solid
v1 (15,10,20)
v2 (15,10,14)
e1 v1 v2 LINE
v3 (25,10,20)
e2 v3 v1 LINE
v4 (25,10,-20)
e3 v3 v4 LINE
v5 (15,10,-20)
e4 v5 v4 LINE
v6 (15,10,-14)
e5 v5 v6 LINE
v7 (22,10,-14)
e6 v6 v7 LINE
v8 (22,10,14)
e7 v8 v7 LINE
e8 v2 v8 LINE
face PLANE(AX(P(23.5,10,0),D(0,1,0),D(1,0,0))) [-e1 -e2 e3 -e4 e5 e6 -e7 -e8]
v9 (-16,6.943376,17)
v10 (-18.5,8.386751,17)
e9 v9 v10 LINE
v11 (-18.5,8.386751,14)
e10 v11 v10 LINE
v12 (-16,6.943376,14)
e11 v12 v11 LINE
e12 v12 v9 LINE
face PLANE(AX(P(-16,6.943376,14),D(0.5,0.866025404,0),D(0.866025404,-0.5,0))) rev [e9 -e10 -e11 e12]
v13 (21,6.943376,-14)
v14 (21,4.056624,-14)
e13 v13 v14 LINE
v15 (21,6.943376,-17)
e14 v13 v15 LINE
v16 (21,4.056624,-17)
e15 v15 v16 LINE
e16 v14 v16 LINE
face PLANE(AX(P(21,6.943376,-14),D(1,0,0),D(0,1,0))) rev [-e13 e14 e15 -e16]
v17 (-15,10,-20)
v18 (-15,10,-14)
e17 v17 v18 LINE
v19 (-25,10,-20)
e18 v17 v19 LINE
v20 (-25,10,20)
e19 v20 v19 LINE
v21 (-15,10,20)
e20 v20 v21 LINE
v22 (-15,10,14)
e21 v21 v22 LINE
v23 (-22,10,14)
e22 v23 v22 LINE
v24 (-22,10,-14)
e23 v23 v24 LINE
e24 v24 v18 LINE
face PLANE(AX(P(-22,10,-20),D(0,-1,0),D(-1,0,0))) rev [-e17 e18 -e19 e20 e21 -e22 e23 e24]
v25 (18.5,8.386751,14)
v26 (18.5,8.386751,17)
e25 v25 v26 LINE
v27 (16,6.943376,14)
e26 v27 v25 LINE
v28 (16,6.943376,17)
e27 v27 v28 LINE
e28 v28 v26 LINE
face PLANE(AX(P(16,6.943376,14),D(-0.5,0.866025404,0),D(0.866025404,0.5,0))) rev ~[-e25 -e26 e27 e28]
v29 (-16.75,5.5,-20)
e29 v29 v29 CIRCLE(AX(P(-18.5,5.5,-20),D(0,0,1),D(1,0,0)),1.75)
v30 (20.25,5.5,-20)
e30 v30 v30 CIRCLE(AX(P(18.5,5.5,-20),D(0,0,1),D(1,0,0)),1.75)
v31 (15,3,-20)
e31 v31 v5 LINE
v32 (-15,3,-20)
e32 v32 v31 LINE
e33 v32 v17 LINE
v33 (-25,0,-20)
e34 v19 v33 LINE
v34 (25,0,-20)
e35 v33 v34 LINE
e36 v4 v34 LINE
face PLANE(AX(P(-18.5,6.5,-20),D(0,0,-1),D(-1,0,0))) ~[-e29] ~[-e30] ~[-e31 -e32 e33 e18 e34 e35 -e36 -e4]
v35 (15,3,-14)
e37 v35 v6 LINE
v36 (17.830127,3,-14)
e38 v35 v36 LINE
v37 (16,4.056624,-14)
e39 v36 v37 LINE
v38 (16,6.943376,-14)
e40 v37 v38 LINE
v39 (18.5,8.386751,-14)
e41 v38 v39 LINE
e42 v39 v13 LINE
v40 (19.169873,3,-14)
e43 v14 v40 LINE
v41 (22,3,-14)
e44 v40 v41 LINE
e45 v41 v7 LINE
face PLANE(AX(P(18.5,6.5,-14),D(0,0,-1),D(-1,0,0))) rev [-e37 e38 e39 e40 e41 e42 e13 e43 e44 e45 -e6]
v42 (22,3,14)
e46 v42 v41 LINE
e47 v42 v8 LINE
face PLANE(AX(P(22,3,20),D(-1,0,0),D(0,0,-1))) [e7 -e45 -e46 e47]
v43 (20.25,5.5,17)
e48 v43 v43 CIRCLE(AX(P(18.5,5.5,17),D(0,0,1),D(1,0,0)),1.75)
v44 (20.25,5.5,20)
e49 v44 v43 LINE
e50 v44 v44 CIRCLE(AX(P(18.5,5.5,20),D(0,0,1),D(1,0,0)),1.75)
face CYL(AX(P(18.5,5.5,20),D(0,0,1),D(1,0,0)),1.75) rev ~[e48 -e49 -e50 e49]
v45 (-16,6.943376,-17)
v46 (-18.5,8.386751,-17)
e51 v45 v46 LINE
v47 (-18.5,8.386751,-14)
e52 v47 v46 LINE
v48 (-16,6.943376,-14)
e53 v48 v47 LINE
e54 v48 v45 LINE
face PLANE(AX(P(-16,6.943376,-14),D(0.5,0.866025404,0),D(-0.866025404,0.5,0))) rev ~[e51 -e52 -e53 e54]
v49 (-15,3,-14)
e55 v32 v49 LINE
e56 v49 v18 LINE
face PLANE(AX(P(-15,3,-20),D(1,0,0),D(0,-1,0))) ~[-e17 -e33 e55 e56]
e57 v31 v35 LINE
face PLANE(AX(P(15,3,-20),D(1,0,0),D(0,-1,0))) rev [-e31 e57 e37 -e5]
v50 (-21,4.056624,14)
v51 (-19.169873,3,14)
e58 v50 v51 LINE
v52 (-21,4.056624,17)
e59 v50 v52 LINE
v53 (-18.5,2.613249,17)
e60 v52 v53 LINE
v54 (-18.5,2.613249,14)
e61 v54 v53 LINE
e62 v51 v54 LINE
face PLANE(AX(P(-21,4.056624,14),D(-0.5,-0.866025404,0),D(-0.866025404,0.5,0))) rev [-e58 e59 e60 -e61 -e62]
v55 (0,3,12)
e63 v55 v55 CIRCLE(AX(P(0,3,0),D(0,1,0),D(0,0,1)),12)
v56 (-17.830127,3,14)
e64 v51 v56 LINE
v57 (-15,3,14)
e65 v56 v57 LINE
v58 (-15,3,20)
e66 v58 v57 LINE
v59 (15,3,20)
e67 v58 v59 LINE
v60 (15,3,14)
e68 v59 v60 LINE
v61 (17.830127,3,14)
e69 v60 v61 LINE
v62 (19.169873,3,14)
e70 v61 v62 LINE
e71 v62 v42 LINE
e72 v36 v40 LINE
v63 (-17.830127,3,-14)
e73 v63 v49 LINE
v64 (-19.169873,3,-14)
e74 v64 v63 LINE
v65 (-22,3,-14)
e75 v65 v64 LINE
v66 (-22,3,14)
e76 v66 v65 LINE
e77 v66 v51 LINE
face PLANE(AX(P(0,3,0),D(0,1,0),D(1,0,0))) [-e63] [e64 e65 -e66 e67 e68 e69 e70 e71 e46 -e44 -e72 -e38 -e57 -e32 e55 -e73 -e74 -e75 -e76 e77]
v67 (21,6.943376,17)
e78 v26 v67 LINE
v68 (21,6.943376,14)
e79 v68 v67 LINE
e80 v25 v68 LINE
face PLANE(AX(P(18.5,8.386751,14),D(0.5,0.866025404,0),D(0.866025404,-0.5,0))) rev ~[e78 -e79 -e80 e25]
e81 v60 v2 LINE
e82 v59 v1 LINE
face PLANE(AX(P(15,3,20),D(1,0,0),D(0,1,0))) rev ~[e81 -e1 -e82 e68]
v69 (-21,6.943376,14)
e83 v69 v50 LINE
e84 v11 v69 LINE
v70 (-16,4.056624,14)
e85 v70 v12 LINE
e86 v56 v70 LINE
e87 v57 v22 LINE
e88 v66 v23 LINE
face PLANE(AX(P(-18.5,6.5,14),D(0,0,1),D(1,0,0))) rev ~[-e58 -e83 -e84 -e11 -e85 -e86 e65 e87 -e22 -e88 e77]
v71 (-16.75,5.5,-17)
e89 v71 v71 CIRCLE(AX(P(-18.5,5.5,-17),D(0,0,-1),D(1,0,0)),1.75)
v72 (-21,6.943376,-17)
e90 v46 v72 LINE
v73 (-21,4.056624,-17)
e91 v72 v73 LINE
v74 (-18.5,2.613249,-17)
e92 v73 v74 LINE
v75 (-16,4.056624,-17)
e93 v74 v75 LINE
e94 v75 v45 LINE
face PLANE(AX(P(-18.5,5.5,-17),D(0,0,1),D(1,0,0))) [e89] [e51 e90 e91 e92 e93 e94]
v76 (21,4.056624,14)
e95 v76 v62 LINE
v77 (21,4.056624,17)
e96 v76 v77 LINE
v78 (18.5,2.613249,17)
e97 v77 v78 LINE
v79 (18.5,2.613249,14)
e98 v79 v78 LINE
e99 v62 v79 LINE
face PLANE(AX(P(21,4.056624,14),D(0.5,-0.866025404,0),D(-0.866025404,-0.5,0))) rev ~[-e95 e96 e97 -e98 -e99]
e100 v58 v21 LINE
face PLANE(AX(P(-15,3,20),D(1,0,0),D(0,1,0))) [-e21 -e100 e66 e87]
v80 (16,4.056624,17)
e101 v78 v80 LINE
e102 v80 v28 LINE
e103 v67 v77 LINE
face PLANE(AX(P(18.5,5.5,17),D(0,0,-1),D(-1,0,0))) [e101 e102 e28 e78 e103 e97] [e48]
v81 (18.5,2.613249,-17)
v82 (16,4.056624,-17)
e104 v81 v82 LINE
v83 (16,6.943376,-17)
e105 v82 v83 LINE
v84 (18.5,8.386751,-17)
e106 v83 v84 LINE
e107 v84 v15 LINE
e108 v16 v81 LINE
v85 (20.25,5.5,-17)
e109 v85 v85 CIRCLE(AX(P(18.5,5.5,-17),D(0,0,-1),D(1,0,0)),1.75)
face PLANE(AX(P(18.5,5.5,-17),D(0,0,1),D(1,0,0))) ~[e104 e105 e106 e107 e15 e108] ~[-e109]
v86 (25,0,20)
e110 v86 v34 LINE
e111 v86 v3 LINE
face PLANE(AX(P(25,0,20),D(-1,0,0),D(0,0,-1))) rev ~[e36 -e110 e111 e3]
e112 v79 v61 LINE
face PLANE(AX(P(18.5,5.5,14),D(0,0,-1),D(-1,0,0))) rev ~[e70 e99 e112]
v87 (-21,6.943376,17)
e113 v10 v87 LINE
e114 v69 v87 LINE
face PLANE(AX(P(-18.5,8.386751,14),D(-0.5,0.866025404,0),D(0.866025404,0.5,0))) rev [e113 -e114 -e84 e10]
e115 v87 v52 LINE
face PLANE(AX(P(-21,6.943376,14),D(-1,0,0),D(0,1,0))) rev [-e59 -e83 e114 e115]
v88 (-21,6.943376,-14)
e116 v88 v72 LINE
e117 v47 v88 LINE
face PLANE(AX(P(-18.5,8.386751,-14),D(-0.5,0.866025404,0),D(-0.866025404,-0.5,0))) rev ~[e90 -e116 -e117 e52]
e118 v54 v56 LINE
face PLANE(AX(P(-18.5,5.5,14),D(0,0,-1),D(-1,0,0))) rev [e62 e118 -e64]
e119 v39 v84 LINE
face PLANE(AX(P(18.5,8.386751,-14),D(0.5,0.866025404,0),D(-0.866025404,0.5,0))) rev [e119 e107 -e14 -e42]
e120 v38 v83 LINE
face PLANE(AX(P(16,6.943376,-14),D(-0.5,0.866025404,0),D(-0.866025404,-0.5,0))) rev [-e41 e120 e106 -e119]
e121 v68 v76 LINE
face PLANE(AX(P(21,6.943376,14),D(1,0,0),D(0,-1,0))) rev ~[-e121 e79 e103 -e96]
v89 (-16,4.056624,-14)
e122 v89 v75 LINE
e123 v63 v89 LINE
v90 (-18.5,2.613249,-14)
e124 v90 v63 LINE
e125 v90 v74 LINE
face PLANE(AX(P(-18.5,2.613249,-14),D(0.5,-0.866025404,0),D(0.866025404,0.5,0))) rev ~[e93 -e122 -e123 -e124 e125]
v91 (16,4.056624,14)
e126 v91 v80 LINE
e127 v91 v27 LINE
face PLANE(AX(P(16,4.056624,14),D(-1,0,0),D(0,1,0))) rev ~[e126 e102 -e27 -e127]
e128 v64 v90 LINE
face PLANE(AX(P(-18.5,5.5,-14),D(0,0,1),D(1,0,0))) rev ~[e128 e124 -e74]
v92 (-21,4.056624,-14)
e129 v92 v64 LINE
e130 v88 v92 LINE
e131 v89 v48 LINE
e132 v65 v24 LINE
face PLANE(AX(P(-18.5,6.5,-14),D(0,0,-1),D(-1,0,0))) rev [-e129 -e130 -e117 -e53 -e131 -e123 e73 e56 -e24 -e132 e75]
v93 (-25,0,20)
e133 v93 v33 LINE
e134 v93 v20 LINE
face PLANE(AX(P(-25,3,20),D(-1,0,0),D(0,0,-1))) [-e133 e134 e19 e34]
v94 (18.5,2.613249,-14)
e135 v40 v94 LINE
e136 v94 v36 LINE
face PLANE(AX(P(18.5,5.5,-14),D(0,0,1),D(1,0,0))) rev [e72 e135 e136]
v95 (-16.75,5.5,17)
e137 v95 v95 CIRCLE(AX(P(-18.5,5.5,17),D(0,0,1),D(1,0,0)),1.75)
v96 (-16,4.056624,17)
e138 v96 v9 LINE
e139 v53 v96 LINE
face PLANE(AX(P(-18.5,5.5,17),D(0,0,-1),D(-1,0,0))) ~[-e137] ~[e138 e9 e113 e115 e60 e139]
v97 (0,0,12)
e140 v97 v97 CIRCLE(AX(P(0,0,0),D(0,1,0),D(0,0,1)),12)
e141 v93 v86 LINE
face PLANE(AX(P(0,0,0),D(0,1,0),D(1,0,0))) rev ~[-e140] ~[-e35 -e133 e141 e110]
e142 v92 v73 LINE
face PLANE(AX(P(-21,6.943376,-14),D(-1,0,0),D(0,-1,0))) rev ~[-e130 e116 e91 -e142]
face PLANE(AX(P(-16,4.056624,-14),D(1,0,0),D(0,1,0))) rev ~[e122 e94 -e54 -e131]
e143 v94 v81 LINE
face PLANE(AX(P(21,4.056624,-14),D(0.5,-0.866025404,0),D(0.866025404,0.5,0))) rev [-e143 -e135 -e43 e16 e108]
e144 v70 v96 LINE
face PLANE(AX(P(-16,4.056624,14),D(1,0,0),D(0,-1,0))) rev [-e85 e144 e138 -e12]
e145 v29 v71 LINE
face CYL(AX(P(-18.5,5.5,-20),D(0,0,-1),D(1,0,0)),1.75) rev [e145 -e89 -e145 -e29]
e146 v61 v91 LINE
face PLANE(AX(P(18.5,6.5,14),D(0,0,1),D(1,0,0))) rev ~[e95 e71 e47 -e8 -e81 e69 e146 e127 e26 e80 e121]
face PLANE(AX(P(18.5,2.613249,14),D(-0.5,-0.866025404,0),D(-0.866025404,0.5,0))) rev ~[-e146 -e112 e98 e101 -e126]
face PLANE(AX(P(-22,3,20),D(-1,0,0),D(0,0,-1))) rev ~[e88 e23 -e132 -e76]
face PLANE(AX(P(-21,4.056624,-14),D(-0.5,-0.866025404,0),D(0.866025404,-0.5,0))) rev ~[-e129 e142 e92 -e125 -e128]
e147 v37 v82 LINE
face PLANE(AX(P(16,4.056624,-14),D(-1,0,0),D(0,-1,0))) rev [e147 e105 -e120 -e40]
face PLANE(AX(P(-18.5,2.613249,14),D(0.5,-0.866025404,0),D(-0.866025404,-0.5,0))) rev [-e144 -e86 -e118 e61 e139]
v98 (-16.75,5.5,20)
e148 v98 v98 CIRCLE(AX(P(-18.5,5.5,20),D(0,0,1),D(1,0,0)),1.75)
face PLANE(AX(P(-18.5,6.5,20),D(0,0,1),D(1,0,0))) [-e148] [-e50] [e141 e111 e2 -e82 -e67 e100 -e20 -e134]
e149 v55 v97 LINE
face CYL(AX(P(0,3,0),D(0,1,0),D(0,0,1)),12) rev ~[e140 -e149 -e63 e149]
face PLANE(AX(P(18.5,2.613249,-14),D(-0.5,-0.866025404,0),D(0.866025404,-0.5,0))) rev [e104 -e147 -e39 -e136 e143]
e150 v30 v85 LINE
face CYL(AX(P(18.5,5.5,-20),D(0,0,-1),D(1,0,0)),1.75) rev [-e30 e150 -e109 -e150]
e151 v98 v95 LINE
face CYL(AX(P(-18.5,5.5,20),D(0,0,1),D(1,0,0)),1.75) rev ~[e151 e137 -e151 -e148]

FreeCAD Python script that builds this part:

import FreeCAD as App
import Part
import Sketcher
Q = App.Units.Quantity


def add_polygon(sketch, points):
    """Adds a closed chain of lines whose ends are joined by coincident constraints."""
    first, n = sketch.GeometryCount, len(points)
    for a, b in zip(points, points[1:] + points[:1]):
        sketch.addGeometry(Part.LineSegment(App.Vector(*a, 0), App.Vector(*b, 0)), False)
    for i in range(n):
        sketch.addConstraint(Sketcher.Constraint("Coincident", first + i, 2, first + (i + 1) % n, 1))

doc = App.newDocument("Part")
body = doc.addObject("PartDesign::Body", "Body")

# Sketch on XZ plane
sketch1 = doc.addObject("Sketcher::SketchObject", "Sketch")
body.addObject(sketch1)
sketch1.AttachmentSupport = (doc.XZ_Plane, [""])
sketch1.MapMode = "FlatFace"
add_polygon(sketch1, [(-25, -20), (-25, 20), (25, 20), (25, -20)])  # lines 0-3
sketch1.addConstraint([
    Sketcher.Constraint("Vertical", 0),
    Sketcher.Constraint("Horizontal", 1),
    Sketcher.Constraint("Vertical", 2),
    Sketcher.Constraint("Horizontal", 3),
    Sketcher.Constraint("Symmetric", 0, 2, 2, 2, -1, 1),
    Sketcher.Constraint("DistanceX", 1, 1, 1, 2, 50.0),
    Sketcher.Constraint("DistanceY", 0, 1, 0, 2, 40.0),
])
pad1 = doc.addObject("PartDesign::Pad", "Pad")
body.addObject(pad1)
pad1.Profile = sketch1
pad1.Length = 3
pad1.Reversed = True

# Sketch on XZ plane
sketch2 = doc.addObject("Sketcher::SketchObject", "Sketch001")
body.addObject(sketch2)
sketch2.AttachmentSupport = (doc.XZ_Plane, [""])
sketch2.MapMode = "FlatFace"
sketch2.AttachmentOffset = App.Placement(App.Vector(0, 0, -3), App.Rotation())
sketch2.addGeometry(Part.Circle(App.Vector(0, 0, 0), App.Vector(0, 0, 1), 12), False)
sketch2.addConstraint([
    Sketcher.Constraint("Coincident", 0, 3, -1, 1),
    Sketcher.Constraint("Diameter", 0, 24.0),
])
pocket1 = doc.addObject("PartDesign::Pocket", "Pocket")
body.addObject(pocket1)
pocket1.Profile = sketch2
pocket1.Type = "ThroughAll"
pocket1.Reversed = True

# Sketch on XZ plane
sketch3 = doc.addObject("Sketcher::SketchObject", "Sketch002")
body.addObject(sketch3)
sketch3.AttachmentSupport = (doc.XZ_Plane, [""])
sketch3.MapMode = "FlatFace"
sketch3.AttachmentOffset = App.Placement(App.Vector(0, 0, -3), App.Rotation())
add_polygon(sketch3, [(-25, -20), (-25, 20), (-22, 20), (-22, -20)])  # lines 0-3
add_polygon(sketch3, [(22, -20), (22, 20), (25, 20), (25, -20)])  # lines 4-7
sketch3.addConstraint([
    Sketcher.Constraint("Vertical", 0),
    Sketcher.Constraint("Horizontal", 1),
    Sketcher.Constraint("Vertical", 2),
    Sketcher.Constraint("Horizontal", 3),
    Sketcher.Constraint("Vertical", 4),
    Sketcher.Constraint("Horizontal", 5),
    Sketcher.Constraint("Vertical", 6),
    Sketcher.Constraint("Horizontal", 7),
    Sketcher.Constraint("Symmetric", 2, 2, 4, 2, -1, 1),
    Sketcher.Constraint("Symmetric", 0, 2, 6, 2, -1, 1),
    Sketcher.Constraint("Horizontal", 1, 2, 4, 2),
    Sketcher.Constraint("DistanceX", 1, 1, 1, 2, 3.0),
    Sketcher.Constraint("DistanceY", 0, 1, 0, 2, 40.0),
    Sketcher.Constraint("DistanceX", 0, 2, -1, 1, 25.0),
])
pad2 = doc.addObject("PartDesign::Pad", "Pad001")
body.addObject(pad2)
pad2.Profile = sketch3
pad2.Length = 7
pad2.Reversed = True

# Sketch on XY plane
sketch4 = doc.addObject("Sketcher::SketchObject", "Sketch003")
body.addObject(sketch4)
sketch4.AttachmentSupport = (doc.XY_Plane, [""])
sketch4.MapMode = "FlatFace"
sketch4.AttachmentOffset = App.Placement(App.Vector(0, 0, 20), App.Rotation())
add_polygon(sketch4, [(-22, 10), (-22, 3), (-15, 3), (-15, 10)])  # lines 0-3
add_polygon(sketch4, [(15, 10), (15, 3), (22, 3), (22, 10)])  # lines 4-7
sketch4.addConstraint([
    Sketcher.Constraint("Vertical", 0),
    Sketcher.Constraint("Horizontal", 1),
    Sketcher.Constraint("Vertical", 2),
    Sketcher.Constraint("Horizontal", 3),
    Sketcher.Constraint("Vertical", 4),
    Sketcher.Constraint("Horizontal", 5),
    Sketcher.Constraint("Vertical", 6),
    Sketcher.Constraint("Horizontal", 7),
    Sketcher.Constraint("Symmetric", 1, 2, 4, 2, -2),
    Sketcher.Constraint("Symmetric", 3, 2, 6, 2, -2),
    Sketcher.Constraint("Equal", 7, 0),
    Sketcher.Constraint("DistanceX", 1, 1, 1, 2, 7.0),
    Sketcher.Constraint("DistanceX", 0, 2, -1, 1, 22.0),
    Sketcher.Constraint("DistanceY", -1, 1, 0, 2, 3.0),
])
pad3 = doc.addObject("PartDesign::Pad", "Pad002")
body.addObject(pad3)
pad3.Profile = sketch4
pad3.Length = 6
pad3.Reversed = True

# Sketch on XY plane
sketch5 = doc.addObject("Sketcher::SketchObject", "Sketch004")
body.addObject(sketch5)
sketch5.AttachmentSupport = (doc.XY_Plane, [""])
sketch5.MapMode = "FlatFace"
sketch5.AttachmentOffset = App.Placement(App.Vector(0, 0, 20), App.Rotation())
sketch5.addGeometry([
    Part.Circle(App.Vector(-18.5, 5.5, 0), App.Vector(0, 0, 1), 1.8),
    Part.Circle(App.Vector(18.5, 5.5, 0), App.Vector(0, 0, 1), 1.8),
], False)
sketch5.addConstraint([
    Sketcher.Constraint("Equal", 0, 1),
    Sketcher.Constraint("Symmetric", 0, 3, 1, 3, -2),
    Sketcher.Constraint("Diameter", 0, 3.5),
    Sketcher.Constraint("DistanceX", 0, 3, 1, 3, 37.0),
    Sketcher.Constraint("DistanceY", -1, 1, 0, 3, 5.5),
])
pocket2 = doc.addObject("PartDesign::Pocket", "Pocket001")
body.addObject(pocket2)
pocket2.Profile = sketch5
pocket2.Type = "ThroughAll"
doc.recompute()

mirrored = doc.addObject("PartDesign::Mirrored", "Mirrored")
body.addObject(mirrored)
mirrored.Originals = [pad3, pocket2]
mirrored.MirrorPlane = (doc.XY_Plane, [""])
body.Tip = mirrored

# Sketch on XY plane
sketch6 = doc.addObject("Sketcher::SketchObject", "Sketch005")
body.addObject(sketch6)
sketch6.AttachmentSupport = (doc.XY_Plane, [""])
sketch6.MapMode = "FlatFace"
sketch6.AttachmentOffset = App.Placement(App.Vector(0, 0, -14), App.Rotation())
add_polygon(sketch6, [(-18.5, 2.6), (-16, 4.1), (-16, 6.9), (-18.5, 8.4), (-21, 6.9), (-21, 4.1)])  # lines 0-5
sketch6.addConstraint([
    Sketcher.Constraint("Vertical", 1),
    Sketcher.Constraint("Vertical", 4),
    Sketcher.Constraint("Parallel", 0, 3),
    Sketcher.Constraint("Parallel", 2, 5),
    Sketcher.Constraint("Horizontal", 1, 2, 3, 2),
    Sketcher.Constraint("Horizontal", 0, 2, 4, 2),
    Sketcher.Constraint("Vertical", 2, 2, 5, 2),
    Sketcher.Constraint("Angle", 0, Q("30 deg")),
    Sketcher.Constraint("DistanceX", 0, 2, -1, 1, 16.0),
    Sketcher.Constraint("DistanceX", 3, 2, -1, 1, 21.0),
    Sketcher.Constraint("DistanceY", 1, 1, 1, 2, 2.886751),
    Sketcher.Constraint("DistanceY", -1, 1, 2, 2, 8.386751),
])
pocket3 = doc.addObject("PartDesign::Pocket", "Pocket002")
body.addObject(pocket3)
pocket3.Profile = sketch6
pocket3.Length = 3
doc.recompute()

mirrored2 = doc.addObject("PartDesign::Mirrored", "Mirrored001")
body.addObject(mirrored2)
mirrored2.Originals = [pocket3]
mirrored2.MirrorPlane = (doc.YZ_Plane, [""])
body.Tip = mirrored2
doc.recompute()

mirrored3 = doc.addObject("PartDesign::Mirrored", "Mirrored002")
body.addObject(mirrored3)
mirrored3.Originals = [pocket3]
mirrored3.MirrorPlane = (doc.XY_Plane, [""])
body.Tip = mirrored3

# Sketch on XY plane
sketch7 = doc.addObject("Sketcher::SketchObject", "Sketch006")
body.addObject(sketch7)
sketch7.AttachmentSupport = (doc.XY_Plane, [""])
sketch7.MapMode = "FlatFace"
sketch7.AttachmentOffset = App.Placement(App.Vector(0, 0, 14), App.Rotation())
add_polygon(sketch7, [(18.5, 2.6), (16, 4.1), (16, 6.9), (18.5, 8.4), (21, 6.9), (21, 4.1)])  # lines 0-5
sketch7.addConstraint([
    Sketcher.Constraint("Vertical", 1),
    Sketcher.Constraint("Vertical", 4),
    Sketcher.Constraint("Parallel", 0, 3),
    Sketcher.Constraint("Parallel", 2, 5),
    Sketcher.Constraint("Horizontal", 1, 2, 3, 2),
    Sketcher.Constraint("Horizontal", 0, 2, 4, 2),
    Sketcher.Constraint("Vertical", 2, 2, 5, 2),
    Sketcher.Constraint("Angle", 0, Q("150 deg")),
    Sketcher.Constraint("DistanceX", -1, 1, 0, 2, 16.0),
    Sketcher.Constraint("DistanceX", -1, 1, 3, 2, 21.0),
    Sketcher.Constraint("DistanceY", 1, 1, 1, 2, 2.886751),
    Sketcher.Constraint("DistanceY", -1, 1, 2, 2, 8.386751),
])
pocket4 = doc.addObject("PartDesign::Pocket", "Pocket003")
body.addObject(pocket4)
pocket4.Profile = sketch7
pocket4.Length = 3
pocket4.Reversed = True

doc.recompute()
